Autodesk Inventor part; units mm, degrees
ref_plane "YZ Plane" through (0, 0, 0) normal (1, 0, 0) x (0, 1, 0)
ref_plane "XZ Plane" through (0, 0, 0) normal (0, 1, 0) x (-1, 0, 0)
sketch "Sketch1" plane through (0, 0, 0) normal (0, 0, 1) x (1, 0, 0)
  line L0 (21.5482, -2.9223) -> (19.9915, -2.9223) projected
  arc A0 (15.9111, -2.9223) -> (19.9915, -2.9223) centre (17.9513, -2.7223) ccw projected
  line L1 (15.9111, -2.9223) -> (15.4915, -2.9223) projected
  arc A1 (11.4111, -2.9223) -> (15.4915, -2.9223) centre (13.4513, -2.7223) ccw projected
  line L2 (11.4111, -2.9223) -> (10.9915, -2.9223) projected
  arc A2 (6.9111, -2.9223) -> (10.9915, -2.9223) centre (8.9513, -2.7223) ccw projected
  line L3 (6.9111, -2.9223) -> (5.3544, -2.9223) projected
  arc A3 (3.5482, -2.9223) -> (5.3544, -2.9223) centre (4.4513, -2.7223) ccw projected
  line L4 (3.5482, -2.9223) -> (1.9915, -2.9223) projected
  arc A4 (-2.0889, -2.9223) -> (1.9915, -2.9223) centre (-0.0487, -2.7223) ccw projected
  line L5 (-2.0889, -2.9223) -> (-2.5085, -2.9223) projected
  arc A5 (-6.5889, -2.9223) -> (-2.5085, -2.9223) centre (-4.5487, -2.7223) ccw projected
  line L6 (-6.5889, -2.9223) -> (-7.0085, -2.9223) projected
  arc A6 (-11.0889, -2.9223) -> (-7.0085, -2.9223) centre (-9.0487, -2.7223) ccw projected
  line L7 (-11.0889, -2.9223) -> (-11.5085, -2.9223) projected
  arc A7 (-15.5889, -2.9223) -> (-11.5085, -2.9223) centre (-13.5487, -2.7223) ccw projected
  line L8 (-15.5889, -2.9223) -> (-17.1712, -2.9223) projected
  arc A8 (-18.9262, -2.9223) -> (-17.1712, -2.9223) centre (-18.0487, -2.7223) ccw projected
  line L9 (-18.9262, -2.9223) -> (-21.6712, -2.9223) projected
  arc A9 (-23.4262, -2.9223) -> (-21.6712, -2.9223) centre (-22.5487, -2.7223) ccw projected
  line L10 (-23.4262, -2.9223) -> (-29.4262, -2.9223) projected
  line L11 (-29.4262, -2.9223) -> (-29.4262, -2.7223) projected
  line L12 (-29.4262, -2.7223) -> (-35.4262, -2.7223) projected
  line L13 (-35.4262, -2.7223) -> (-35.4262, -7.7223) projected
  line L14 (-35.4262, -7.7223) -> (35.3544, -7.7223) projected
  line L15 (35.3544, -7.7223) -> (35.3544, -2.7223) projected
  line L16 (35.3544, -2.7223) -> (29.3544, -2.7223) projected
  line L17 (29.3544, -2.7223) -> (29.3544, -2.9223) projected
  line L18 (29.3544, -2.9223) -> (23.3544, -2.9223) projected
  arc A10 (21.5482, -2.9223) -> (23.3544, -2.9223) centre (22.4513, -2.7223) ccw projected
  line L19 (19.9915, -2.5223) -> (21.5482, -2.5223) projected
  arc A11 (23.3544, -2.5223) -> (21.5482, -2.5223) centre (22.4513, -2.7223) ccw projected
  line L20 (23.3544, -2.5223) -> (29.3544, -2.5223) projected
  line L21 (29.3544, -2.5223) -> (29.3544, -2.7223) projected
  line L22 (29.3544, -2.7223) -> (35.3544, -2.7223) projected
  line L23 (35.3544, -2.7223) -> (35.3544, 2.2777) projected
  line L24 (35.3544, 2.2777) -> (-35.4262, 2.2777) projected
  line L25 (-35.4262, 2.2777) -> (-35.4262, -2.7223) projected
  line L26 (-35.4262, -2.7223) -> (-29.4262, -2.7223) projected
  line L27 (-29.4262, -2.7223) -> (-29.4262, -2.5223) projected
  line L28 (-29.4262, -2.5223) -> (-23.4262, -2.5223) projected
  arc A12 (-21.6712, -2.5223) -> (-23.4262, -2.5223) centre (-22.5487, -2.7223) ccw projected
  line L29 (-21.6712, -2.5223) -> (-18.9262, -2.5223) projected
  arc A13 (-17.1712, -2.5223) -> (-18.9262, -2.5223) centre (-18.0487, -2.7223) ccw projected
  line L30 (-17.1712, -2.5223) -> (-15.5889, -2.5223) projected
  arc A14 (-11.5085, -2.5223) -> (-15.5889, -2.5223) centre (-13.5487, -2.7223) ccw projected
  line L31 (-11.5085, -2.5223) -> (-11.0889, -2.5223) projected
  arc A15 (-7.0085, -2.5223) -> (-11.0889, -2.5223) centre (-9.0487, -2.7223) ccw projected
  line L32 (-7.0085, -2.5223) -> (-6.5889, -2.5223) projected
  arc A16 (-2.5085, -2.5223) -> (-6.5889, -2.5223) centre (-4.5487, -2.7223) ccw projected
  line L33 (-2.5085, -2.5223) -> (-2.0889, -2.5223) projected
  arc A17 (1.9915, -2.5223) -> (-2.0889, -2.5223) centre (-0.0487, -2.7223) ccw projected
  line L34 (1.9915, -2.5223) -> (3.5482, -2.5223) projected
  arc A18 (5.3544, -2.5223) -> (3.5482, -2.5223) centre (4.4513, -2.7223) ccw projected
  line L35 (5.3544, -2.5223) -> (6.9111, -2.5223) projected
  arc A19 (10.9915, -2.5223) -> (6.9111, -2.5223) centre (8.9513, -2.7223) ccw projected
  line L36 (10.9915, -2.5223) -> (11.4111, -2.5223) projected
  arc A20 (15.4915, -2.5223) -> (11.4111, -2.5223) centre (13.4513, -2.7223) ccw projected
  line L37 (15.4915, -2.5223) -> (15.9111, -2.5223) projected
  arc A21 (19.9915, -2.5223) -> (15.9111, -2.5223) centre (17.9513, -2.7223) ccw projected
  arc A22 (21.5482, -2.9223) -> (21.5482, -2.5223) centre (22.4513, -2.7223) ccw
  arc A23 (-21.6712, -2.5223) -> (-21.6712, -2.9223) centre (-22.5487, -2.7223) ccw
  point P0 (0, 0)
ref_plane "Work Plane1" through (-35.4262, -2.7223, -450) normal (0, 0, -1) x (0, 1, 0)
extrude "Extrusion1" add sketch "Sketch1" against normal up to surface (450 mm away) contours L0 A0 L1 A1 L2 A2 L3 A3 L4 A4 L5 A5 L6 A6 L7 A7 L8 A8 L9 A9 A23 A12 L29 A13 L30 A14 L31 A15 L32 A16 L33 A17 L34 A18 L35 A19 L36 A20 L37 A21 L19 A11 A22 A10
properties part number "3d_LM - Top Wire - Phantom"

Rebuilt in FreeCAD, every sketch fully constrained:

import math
import FreeCAD as App
import Part
import Sketcher

V = App.Vector

doc = App.newDocument("Part")
body = doc.addObject("PartDesign::Body", "Body")

# Sketch on XY plane
sketch1 = body.newObject("Sketcher::SketchObject", "Sketch")
sketch1.AttachmentSupport = (doc.getObject("XY_Plane"), [""])
sketch1.MapMode = "FlatFace"
sketch1.addGeometry([
    Part.LineSegment(V(19.9915, -2.9223, 0), V(21.5482, -2.9223, 0)),  # 0
    Part.ArcOfCircle(Part.Circle(V(22.4513, -2.7223, 0), V(0, 0, 1), 0.924981), math.radians(-167.512848), math.radians(167.512848)),  # 1
    Part.LineSegment(V(21.5482, -2.5223, 0), V(19.9915, -2.5223, 0)),  # 2
    Part.ArcOfCircle(Part.Circle(V(17.9513, -2.7223, 0), V(0, 0, 1), 2.04998), math.radians(5.598794), math.radians(174.401206)),  # 3
    Part.LineSegment(V(15.9111, -2.5223, 0), V(15.4915, -2.5223, 0)),  # 4
    Part.ArcOfCircle(Part.Circle(V(13.4513, -2.7223, 0), V(0, 0, 1), 2.04998), math.radians(5.598794), math.radians(174.401206)),  # 5
    Part.LineSegment(V(11.4111, -2.5223, 0), V(10.9915, -2.5223, 0)),  # 6
    Part.ArcOfCircle(Part.Circle(V(8.9513, -2.7223, 0), V(0, 0, 1), 2.04998), math.radians(5.598794), math.radians(174.401206)),  # 7
    Part.LineSegment(V(6.9111, -2.5223, 0), V(5.3544, -2.5223, 0)),  # 8
    Part.ArcOfCircle(Part.Circle(V(4.4513, -2.7223, 0), V(0, 0, 1), 0.924981), math.radians(12.487152), math.radians(167.512848)),  # 9
    Part.LineSegment(V(3.5482, -2.5223, 0), V(1.9915, -2.5223, 0)),  # 10
    Part.ArcOfCircle(Part.Circle(V(-0.0487, -2.7223, 0), V(0, 0, 1), 2.04998), math.radians(5.598794), math.radians(174.401206)),  # 11
    Part.LineSegment(V(-2.0889, -2.5223, 0), V(-2.5085, -2.5223, 0)),  # 12
    Part.ArcOfCircle(Part.Circle(V(-4.5487, -2.7223, 0), V(0, 0, 1), 2.04998), math.radians(5.598794), math.radians(174.401206)),  # 13
    Part.LineSegment(V(-6.5889, -2.5223, 0), V(-7.0085, -2.5223, 0)),  # 14
    Part.ArcOfCircle(Part.Circle(V(-9.0487, -2.7223, 0), V(0, 0, 1), 2.04998), math.radians(5.598794), math.radians(174.401206)),  # 15
    Part.LineSegment(V(-11.0889, -2.5223, 0), V(-11.5085, -2.5223, 0)),  # 16
    Part.ArcOfCircle(Part.Circle(V(-13.5487, -2.7223, 0), V(0, 0, 1), 2.04998), math.radians(5.598794), math.radians(174.401206)),  # 17
    Part.LineSegment(V(-15.5889, -2.5223, 0), V(-17.1712, -2.5223, 0)),  # 18
    Part.ArcOfCircle(Part.Circle(V(-18.0487, -2.7223, 0), V(0, 0, 1), 0.900003), math.radians(12.839538), math.radians(167.160462)),  # 19
    Part.LineSegment(V(-18.9262, -2.5223, 0), V(-21.6712, -2.5223, 0)),  # 20
    Part.ArcOfCircle(Part.Circle(V(-22.5487, -2.7223, 0), V(0, 0, 1), 0.900003), math.radians(12.839538), math.radians(347.160462)),  # 21
    Part.LineSegment(V(-21.6712, -2.9223, 0), V(-18.9262, -2.9223, 0)),  # 22
    Part.ArcOfCircle(Part.Circle(V(-18.0487, -2.7223, 0), V(0, 0, 1), 0.900003), math.radians(-167.160462), math.radians(-12.839538)),  # 23
    Part.LineSegment(V(-17.1712, -2.9223, 0), V(-15.5889, -2.9223, 0)),  # 24
    Part.ArcOfCircle(Part.Circle(V(-13.5487, -2.7223, 0), V(0, 0, 1), 2.04998), math.radians(-174.401206), math.radians(-5.598794)),  # 25
    Part.LineSegment(V(-11.5085, -2.9223, 0), V(-11.0889, -2.9223, 0)),  # 26
    Part.ArcOfCircle(Part.Circle(V(-9.0487, -2.7223, 0), V(0, 0, 1), 2.04998), math.radians(-174.401206), math.radians(-5.598794)),  # 27
    Part.LineSegment(V(-7.0085, -2.9223, 0), V(-6.5889, -2.9223, 0)),  # 28
    Part.ArcOfCircle(Part.Circle(V(-4.5487, -2.7223, 0), V(0, 0, 1), 2.04998), math.radians(-174.401206), math.radians(-5.598794)),  # 29
    Part.LineSegment(V(-2.5085, -2.9223, 0), V(-2.0889, -2.9223, 0)),  # 30
    Part.ArcOfCircle(Part.Circle(V(-0.0487, -2.7223, 0), V(0, 0, 1), 2.04998), math.radians(-174.401206), math.radians(-5.598794)),  # 31
    Part.LineSegment(V(1.9915, -2.9223, 0), V(3.5482, -2.9223, 0)),  # 32
    Part.ArcOfCircle(Part.Circle(V(4.4513, -2.7223, 0), V(0, 0, 1), 0.924981), math.radians(-167.512848), math.radians(-12.487152)),  # 33
    Part.LineSegment(V(5.3544, -2.9223, 0), V(6.9111, -2.9223, 0)),  # 34
    Part.ArcOfCircle(Part.Circle(V(8.9513, -2.7223, 0), V(0, 0, 1), 2.04998), math.radians(-174.401206), math.radians(-5.598794)),  # 35
    Part.LineSegment(V(10.9915, -2.9223, 0), V(11.4111, -2.9223, 0)),  # 36
    Part.ArcOfCircle(Part.Circle(V(13.4513, -2.7223, 0), V(0, 0, 1), 2.04998), math.radians(-174.401206), math.radians(-5.598794)),  # 37
    Part.LineSegment(V(15.4915, -2.9223, 0), V(15.9111, -2.9223, 0)),  # 38
    Part.ArcOfCircle(Part.Circle(V(17.9513, -2.7223, 0), V(0, 0, 1), 2.04998), math.radians(-174.401206), math.radians(-5.598794)),  # 39
], False)
sketch1.addConstraint([
    Sketcher.Constraint("Coincident", 0, 2, 1, 1),
    Sketcher.Constraint("Coincident", 1, 2, 2, 1),
    Sketcher.Constraint("Coincident", 2, 2, 3, 1),
    Sketcher.Constraint("Coincident", 3, 2, 4, 1),
    Sketcher.Constraint("Coincident", 4, 2, 5, 1),
    Sketcher.Constraint("Coincident", 5, 2, 6, 1),
    Sketcher.Constraint("Coincident", 6, 2, 7, 1),
    Sketcher.Constraint("Coincident", 7, 2, 8, 1),
    Sketcher.Constraint("Coincident", 8, 2, 9, 1),
    Sketcher.Constraint("Coincident", 9, 2, 10, 1),
    Sketcher.Constraint("Coincident", 10, 2, 11, 1),
    Sketcher.Constraint("Coincident", 11, 2, 12, 1),
    Sketcher.Constraint("Coincident", 12, 2, 13, 1),
    Sketcher.Constraint("Coincident", 13, 2, 14, 1),
    Sketcher.Constraint("Coincident", 14, 2, 15, 1),
    Sketcher.Constraint("Coincident", 15, 2, 16, 1),
    Sketcher.Constraint("Coincident", 16, 2, 17, 1),
    Sketcher.Constraint("Coincident", 17, 2, 18, 1),
    Sketcher.Constraint("Coincident", 18, 2, 19, 1),
    Sketcher.Constraint("Coincident", 19, 2, 20, 1),
    Sketcher.Constraint("Coincident", 20, 2, 21, 1),
    Sketcher.Constraint("Coincident", 21, 2, 22, 1),
    Sketcher.Constraint("Coincident", 22, 2, 23, 1),
    Sketcher.Constraint("Coincident", 23, 2, 24, 1),
    Sketcher.Constraint("Coincident", 24, 2, 25, 1),
    Sketcher.Constraint("Coincident", 25, 2, 26, 1),
    Sketcher.Constraint("Coincident", 26, 2, 27, 1),
    Sketcher.Constraint("Coincident", 27, 2, 28, 1),
    Sketcher.Constraint("Coincident", 28, 2, 29, 1),
    Sketcher.Constraint("Coincident", 29, 2, 30, 1),
    Sketcher.Constraint("Coincident", 30, 2, 31, 1),
    Sketcher.Constraint("Coincident", 31, 2, 32, 1),
    Sketcher.Constraint("Coincident", 32, 2, 33, 1),
    Sketcher.Constraint("Coincident", 33, 2, 34, 1),
    Sketcher.Constraint("Coincident", 34, 2, 35, 1),
    Sketcher.Constraint("Coincident", 35, 2, 36, 1),
    Sketcher.Constraint("Coincident", 36, 2, 37, 1),
    Sketcher.Constraint("Coincident", 37, 2, 38, 1),
    Sketcher.Constraint("Coincident", 38, 2, 39, 1),
    Sketcher.Constraint("Coincident", 39, 2, 0, 1),
    Sketcher.Constraint("Horizontal", 0),
    Sketcher.Constraint("Horizontal", 2),
    Sketcher.Constraint("Horizontal", 4),
    Sketcher.Constraint("Horizontal", 6),
    Sketcher.Constraint("Horizontal", 8),
    Sketcher.Constraint("Horizontal", 10),
    Sketcher.Constraint("Horizontal", 12),
    Sketcher.Constraint("Horizontal", 14),
    Sketcher.Constraint("Horizontal", 16),
    Sketcher.Constraint("Horizontal", 18),
    Sketcher.Constraint("Horizontal", 20),
    Sketcher.Constraint("Horizontal", 22),
    Sketcher.Constraint("Horizontal", 24),
    Sketcher.Constraint("Horizontal", 26),
    Sketcher.Constraint("Horizontal", 28),
    Sketcher.Constraint("Horizontal", 30),
    Sketcher.Constraint("Horizontal", 32),
    Sketcher.Constraint("Horizontal", 34),
    Sketcher.Constraint("Horizontal", 36),
    Sketcher.Constraint("Horizontal", 38),
    Sketcher.Constraint("Coincident", 23, 3, 19, 3),
    Sketcher.Constraint("Coincident", 25, 3, 17, 3),
    Sketcher.Constraint("Coincident", 27, 3, 15, 3),
    Sketcher.Constraint("Coincident", 29, 3, 13, 3),
    Sketcher.Constraint("Coincident", 31, 3, 11, 3),
    Sketcher.Constraint("Coincident", 33, 3, 9, 3),
    Sketcher.Constraint("Coincident", 35, 3, 7, 3),
    Sketcher.Constraint("Coincident", 37, 3, 5, 3),
    Sketcher.Constraint("Coincident", 39, 3, 3, 3),
    Sketcher.Constraint("Equal", 3, 5),
    Sketcher.Constraint("Equal", 5, 7),
    Sketcher.Constraint("Equal", 1, 9),
    Sketcher.Constraint("Equal", 7, 11),
    Sketcher.Constraint("Equal", 11, 13),
    Sketcher.Constraint("Equal", 13, 15),
    Sketcher.Constraint("Equal", 15, 17),
    Sketcher.Constraint("Equal", 19, 21),
    Sketcher.Constraint("Equal", 21, 23),
    Sketcher.Constraint("Equal", 17, 25),
    Sketcher.Constraint("Equal", 25, 27),
    Sketcher.Constraint("Equal", 27, 29),
    Sketcher.Constraint("Equal", 29, 31),
    Sketcher.Constraint("Equal", 9, 33),
    Sketcher.Constraint("Equal", 31, 35),
    Sketcher.Constraint("Equal", 35, 37),
    Sketcher.Constraint("Equal", 37, 39),
    Sketcher.Constraint("Horizontal", 1, 3, 3, 3),
    Sketcher.Constraint("Horizontal", 3, 3, 5, 3),
    Sketcher.Constraint("Horizontal", 5, 3, 7, 3),
    Sketcher.Constraint("Horizontal", 7, 3, 9, 3),
    Sketcher.Constraint("Horizontal", 9, 3, 11, 3),
    Sketcher.Constraint("Horizontal", 11, 3, 13, 3),
    Sketcher.Constraint("Horizontal", 13, 3, 15, 3),
    Sketcher.Constraint("Horizontal", 15, 3, 17, 3),
    Sketcher.Constraint("Horizontal", 17, 3, 19, 3),
    Sketcher.Constraint("Horizontal", 19, 3, 21, 3),
    Sketcher.Constraint("Horizontal", 2, 2, 3, 2),
    Sketcher.Constraint("Horizontal", 4, 2, 5, 2),
    Sketcher.Constraint("Horizontal", 6, 2, 7, 2),
    Sketcher.Constraint("Horizontal", 8, 2, 9, 2),
    Sketcher.Constraint("Horizontal", 10, 2, 11, 2),
    Sketcher.Constraint("Horizontal", 12, 2, 13, 2),
    Sketcher.Constraint("Horizontal", 14, 2, 15, 2),
    Sketcher.Constraint("Horizontal", 16, 2, 17, 2),
    Sketcher.Constraint("Horizontal", 18, 2, 19, 2),
    Sketcher.Constraint("Horizontal", 0, 2, 21, 2),
    Sketcher.Constraint("Horizontal", 22, 2, 23, 2),
    Sketcher.Constraint("Horizontal", 24, 2, 25, 2),
    Sketcher.Constraint("Horizontal", 26, 2, 27, 2),
    Sketcher.Constraint("Horizontal", 28, 2, 29, 2),
    Sketcher.Constraint("Horizontal", 30, 2, 31, 2),
    Sketcher.Constraint("Horizontal", 32, 2, 33, 2),
    Sketcher.Constraint("Horizontal", 34, 2, 35, 2),
    Sketcher.Constraint("Horizontal", 36, 2, 37, 2),
    Sketcher.Constraint("Vertical", 0, 2, 1, 2),
    Sketcher.Constraint("Equal", 4, 6),
    Sketcher.Constraint("Equal", 2, 8),
    Sketcher.Constraint("Equal", 8, 10),
    Sketcher.Constraint("Equal", 6, 12),
    Sketcher.Constraint("Equal", 12, 14),
    Sketcher.Constraint("Equal", 14, 16),
    Sketcher.Constraint("Radius", 19, 0.9),
    Sketcher.Constraint("Radius", 3, 2.05),
    Sketcher.Constraint("Radius", 1, 0.925),
    Sketcher.Constraint("DistanceX", 5, 3, 1, 3, 9.0),
    Sketcher.Constraint("DistanceX", 7, 3, 3, 3, 9.0),
    Sketcher.Constraint("DistanceX", 19, 3, 15, 3, 9.0),
    Sketcher.Constraint("DistanceX", 21, 3, 17, 3, 9.0),
    Sketcher.Constraint("DistanceY", 0, 2, 1, 3, 0.2),
    Sketcher.Constraint("DistanceX", -1, 1, 3, 2, 15.911),
    Sketcher.Constraint("DistanceY", 1, 3, -1, 1, 2.7223),
])
pad1 = body.newObject("PartDesign::Pad", "Pad")
pad1.Profile = sketch1
pad1.Length = 450
pad1.Reversed = True

doc.recompute()
